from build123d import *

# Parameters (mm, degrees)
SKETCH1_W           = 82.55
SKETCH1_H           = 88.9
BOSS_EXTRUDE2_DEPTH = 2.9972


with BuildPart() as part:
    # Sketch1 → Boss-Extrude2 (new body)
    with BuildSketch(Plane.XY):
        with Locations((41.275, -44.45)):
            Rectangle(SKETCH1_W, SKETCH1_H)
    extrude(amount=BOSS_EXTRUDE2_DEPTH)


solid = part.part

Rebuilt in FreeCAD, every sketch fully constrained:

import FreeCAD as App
import Part
import Sketcher
from FreeCAD import Vector
Q = App.Units.Quantity


def add_polygon(sketch, points):
    """Adds a closed chain of lines whose ends are joined by coincident constraints."""
    first, n = sketch.GeometryCount, len(points)
    for a, b in zip(points, points[1:] + points[:1]):
        sketch.addGeometry(Part.LineSegment(App.Vector(*a, 0), App.Vector(*b, 0)), False)
    for i in range(n):
        sketch.addConstraint(Sketcher.Constraint("Coincident", first + i, 2, first + (i + 1) % n, 1))

doc = App.newDocument("Part")
body = doc.addObject("PartDesign::Body", "Body")

sketch1 = body.newObject("Sketcher::SketchObject", "Sketch")
sketch1.AttachmentSupport = (doc.getObject("XY_Plane"), [""])
sketch1.MapMode = "FlatFace"
add_polygon(sketch1, [(0, 0), (0, -89), (83, -89), (83, 0)])
sketch1.addConstraint([
    Sketcher.Constraint("Vertical", 0),
    Sketcher.Constraint("Horizontal", 1),
    Sketcher.Constraint("Vertical", 2),
    Sketcher.Constraint("Horizontal", 3),
    Sketcher.Constraint("Coincident", 3, 2, -1, 1),
    Sketcher.Constraint("DistanceY", 0, 2, 0, 1, Q("3.5 in")),
    Sketcher.Constraint("DistanceX", 1, 1, 1, 2, Q("3.25 in")),
])
pad1 = body.newObject("PartDesign::Pad", "Pad")
pad1.Profile = sketch1
pad1.Length = Q("0.118 in")

doc.recompute()
